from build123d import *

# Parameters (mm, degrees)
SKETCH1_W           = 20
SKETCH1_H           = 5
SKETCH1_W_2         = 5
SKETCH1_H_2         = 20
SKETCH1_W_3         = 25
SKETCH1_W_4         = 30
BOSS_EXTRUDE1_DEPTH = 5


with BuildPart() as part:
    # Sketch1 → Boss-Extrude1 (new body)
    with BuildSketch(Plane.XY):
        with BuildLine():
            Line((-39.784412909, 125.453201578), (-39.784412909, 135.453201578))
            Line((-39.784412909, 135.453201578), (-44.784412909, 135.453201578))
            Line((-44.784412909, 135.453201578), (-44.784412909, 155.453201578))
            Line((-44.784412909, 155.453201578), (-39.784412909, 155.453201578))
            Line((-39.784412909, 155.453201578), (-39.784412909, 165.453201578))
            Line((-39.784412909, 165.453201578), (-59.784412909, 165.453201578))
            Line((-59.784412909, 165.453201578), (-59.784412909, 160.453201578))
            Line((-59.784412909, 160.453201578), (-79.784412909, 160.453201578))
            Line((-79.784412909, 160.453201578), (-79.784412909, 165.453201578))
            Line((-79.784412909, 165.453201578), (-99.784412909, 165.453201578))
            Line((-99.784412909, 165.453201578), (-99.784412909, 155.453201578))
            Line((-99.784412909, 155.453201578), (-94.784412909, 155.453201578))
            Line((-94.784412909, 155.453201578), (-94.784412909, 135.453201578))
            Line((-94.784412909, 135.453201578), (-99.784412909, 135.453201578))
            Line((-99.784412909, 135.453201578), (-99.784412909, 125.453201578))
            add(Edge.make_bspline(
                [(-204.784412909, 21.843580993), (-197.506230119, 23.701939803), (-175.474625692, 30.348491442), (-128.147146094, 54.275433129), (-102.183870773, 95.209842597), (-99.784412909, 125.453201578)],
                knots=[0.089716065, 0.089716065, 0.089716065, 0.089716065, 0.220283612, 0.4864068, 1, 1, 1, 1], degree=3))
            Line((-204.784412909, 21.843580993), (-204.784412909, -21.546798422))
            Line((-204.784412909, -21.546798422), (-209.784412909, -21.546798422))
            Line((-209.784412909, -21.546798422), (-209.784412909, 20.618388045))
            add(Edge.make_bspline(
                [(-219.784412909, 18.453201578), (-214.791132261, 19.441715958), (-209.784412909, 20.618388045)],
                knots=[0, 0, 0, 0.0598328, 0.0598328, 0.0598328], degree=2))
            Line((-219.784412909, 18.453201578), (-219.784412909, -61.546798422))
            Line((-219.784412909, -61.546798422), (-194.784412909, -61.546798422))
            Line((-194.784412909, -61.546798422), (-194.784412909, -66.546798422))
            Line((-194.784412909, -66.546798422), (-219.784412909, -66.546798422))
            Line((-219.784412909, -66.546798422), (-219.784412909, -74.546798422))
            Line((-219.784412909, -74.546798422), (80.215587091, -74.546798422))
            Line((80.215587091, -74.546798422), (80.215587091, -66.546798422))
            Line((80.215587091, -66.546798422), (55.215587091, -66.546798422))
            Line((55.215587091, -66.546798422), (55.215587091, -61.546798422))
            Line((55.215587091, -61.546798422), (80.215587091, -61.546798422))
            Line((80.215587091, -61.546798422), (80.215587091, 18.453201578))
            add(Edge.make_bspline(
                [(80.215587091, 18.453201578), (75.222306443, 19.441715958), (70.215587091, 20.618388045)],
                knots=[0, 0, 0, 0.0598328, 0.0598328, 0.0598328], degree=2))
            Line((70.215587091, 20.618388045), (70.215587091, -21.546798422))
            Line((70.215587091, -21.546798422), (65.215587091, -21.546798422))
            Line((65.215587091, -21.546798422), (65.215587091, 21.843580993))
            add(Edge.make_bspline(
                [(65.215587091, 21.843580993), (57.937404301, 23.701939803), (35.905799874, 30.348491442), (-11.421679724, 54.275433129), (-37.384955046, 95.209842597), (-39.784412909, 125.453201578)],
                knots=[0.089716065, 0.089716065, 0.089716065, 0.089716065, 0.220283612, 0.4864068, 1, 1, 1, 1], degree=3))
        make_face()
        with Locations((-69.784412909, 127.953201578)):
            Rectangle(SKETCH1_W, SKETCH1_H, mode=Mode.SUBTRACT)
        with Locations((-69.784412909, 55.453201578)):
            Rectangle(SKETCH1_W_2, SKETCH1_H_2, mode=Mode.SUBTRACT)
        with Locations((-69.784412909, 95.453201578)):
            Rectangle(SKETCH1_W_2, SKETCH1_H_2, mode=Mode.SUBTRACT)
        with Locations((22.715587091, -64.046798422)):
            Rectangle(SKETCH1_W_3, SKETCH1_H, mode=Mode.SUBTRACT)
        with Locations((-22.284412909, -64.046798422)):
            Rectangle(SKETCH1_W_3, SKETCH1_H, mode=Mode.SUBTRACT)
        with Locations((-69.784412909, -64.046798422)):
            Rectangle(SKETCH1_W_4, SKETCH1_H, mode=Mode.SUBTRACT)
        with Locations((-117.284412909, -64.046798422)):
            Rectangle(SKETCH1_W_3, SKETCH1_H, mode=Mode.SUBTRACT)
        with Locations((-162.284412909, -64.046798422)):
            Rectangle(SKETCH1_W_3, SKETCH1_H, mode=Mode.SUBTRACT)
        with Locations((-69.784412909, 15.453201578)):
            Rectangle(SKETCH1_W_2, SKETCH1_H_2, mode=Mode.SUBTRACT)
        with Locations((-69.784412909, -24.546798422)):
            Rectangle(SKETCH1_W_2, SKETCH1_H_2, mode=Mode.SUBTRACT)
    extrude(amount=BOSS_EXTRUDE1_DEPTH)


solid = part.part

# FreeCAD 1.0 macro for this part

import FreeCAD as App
import Part
import Sketcher
from FreeCAD import Vector

doc = App.newDocument("Part")
body = doc.addObject("PartDesign::Body", "Body")

# Sketch on XY plane
sketch1 = body.newObject("Sketcher::SketchObject", "Sketch")
sketch1.AttachmentSupport = (doc.getObject("XY_Plane"), [""])
sketch1.MapMode = "FlatFace"
sketch1.addGeometry([
    Part.LineSegment(Vector(-39.784413, 125.453202, 0), Vector(-39.784413, 135.453202, 0)),  # 0
    Part.LineSegment(Vector(-39.784413, 135.453202, 0), Vector(-44.784413, 135.453202, 0)),  # 1
    Part.LineSegment(Vector(-44.784413, 135.453202, 0), Vector(-44.784413, 155.453202, 0)),  # 2
    Part.LineSegment(Vector(-44.784413, 155.453202, 0), Vector(-39.784413, 155.453202, 0)),  # 3
    Part.LineSegment(Vector(-39.784413, 155.453202, 0), Vector(-39.784413, 165.453202, 0)),  # 4
    Part.LineSegment(Vector(-39.784413, 165.453202, 0), Vector(-59.784413, 165.453202, 0)),  # 5
    Part.LineSegment(Vector(-59.784413, 165.453202, 0), Vector(-59.784413, 160.453202, 0)),  # 6
    Part.LineSegment(Vector(-59.784413, 160.453202, 0), Vector(-79.784413, 160.453202, 0)),  # 7
    Part.LineSegment(Vector(-79.784413, 160.453202, 0), Vector(-79.784413, 165.453202, 0)),  # 8
    Part.LineSegment(Vector(-79.784413, 165.453202, 0), Vector(-99.784413, 165.453202, 0)),  # 9
    Part.LineSegment(Vector(-99.784413, 165.453202, 0), Vector(-99.784413, 155.453202, 0)),  # 10
    Part.LineSegment(Vector(-99.784413, 155.453202, 0), Vector(-94.784413, 155.453202, 0)),  # 11
    Part.LineSegment(Vector(-94.784413, 155.453202, 0), Vector(-94.784413, 135.453202, 0)),  # 12
    Part.LineSegment(Vector(-94.784413, 135.453202, 0), Vector(-99.784413, 135.453202, 0)),  # 13
    Part.LineSegment(Vector(-99.784413, 135.453202, 0), Vector(-99.784413, 125.453202, 0)),  # 14
    Part.BSplineCurve([Vector(-204.784413, 21.843581, 0), Vector(-197.50623, 23.70194, 0), Vector(-175.474626, 30.348491, 0), Vector(-128.147146, 54.275433, 0), Vector(-102.183871, 95.209843, 0), Vector(-99.784413, 125.453202, 0)], [4, 1, 1, 4], [0.089716065, 0.220283612, 0.4864068, 1], False, 3, [1, 1, 1, 1, 1, 1], False),  # 15
    Part.LineSegment(Vector(-204.784413, 21.843581, 0), Vector(-204.784413, -21.546798, 0)),  # 16
    Part.LineSegment(Vector(-204.784413, -21.546798, 0), Vector(-209.784413, -21.546798, 0)),  # 17
    Part.LineSegment(Vector(-209.784413, -21.546798, 0), Vector(-209.784413, 20.618388, 0)),  # 18
    Part.BSplineCurve([Vector(-219.784413, 18.453202, 0), Vector(-214.791132, 19.441716, 0), Vector(-209.784413, 20.618388, 0)], [3, 3], [0, 0.0598328], False, 2, [1, 1, 1], False),  # 19
    Part.LineSegment(Vector(-219.784413, 18.453202, 0), Vector(-219.784413, -61.546798, 0)),  # 20
    Part.LineSegment(Vector(-219.784413, -61.546798, 0), Vector(-194.784413, -61.546798, 0)),  # 21
    Part.LineSegment(Vector(-194.784413, -61.546798, 0), Vector(-194.784413, -66.546798, 0)),  # 22
    Part.LineSegment(Vector(-194.784413, -66.546798, 0), Vector(-219.784413, -66.546798, 0)),  # 23
    Part.LineSegment(Vector(-219.784413, -66.546798, 0), Vector(-219.784413, -74.546798, 0)),  # 24
    Part.LineSegment(Vector(-219.784413, -74.546798, 0), Vector(80.215587, -74.546798, 0)),  # 25
    Part.LineSegment(Vector(80.215587, -74.546798, 0), Vector(80.215587, -66.546798, 0)),  # 26
    Part.LineSegment(Vector(80.215587, -66.546798, 0), Vector(55.215587, -66.546798, 0)),  # 27
    Part.LineSegment(Vector(55.215587, -66.546798, 0), Vector(55.215587, -61.546798, 0)),  # 28
    Part.LineSegment(Vector(55.215587, -61.546798, 0), Vector(80.215587, -61.546798, 0)),  # 29
    Part.LineSegment(Vector(80.215587, -61.546798, 0), Vector(80.215587, 18.453202, 0)),  # 30
    Part.BSplineCurve([Vector(80.215587, 18.453202, 0), Vector(75.222306, 19.441716, 0), Vector(70.215587, 20.618388, 0)], [3, 3], [0, 0.0598328], False, 2, [1, 1, 1], False),  # 31
    Part.LineSegment(Vector(70.215587, 20.618388, 0), Vector(70.215587, -21.546798, 0)),  # 32
    Part.LineSegment(Vector(70.215587, -21.546798, 0), Vector(65.215587, -21.546798, 0)),  # 33
    Part.LineSegment(Vector(65.215587, -21.546798, 0), Vector(65.215587, 21.843581, 0)),  # 34
    Part.BSplineCurve([Vector(65.215587, 21.843581, 0), Vector(57.937404, 23.70194, 0), Vector(35.9058, 30.348491, 0), Vector(-11.42168, 54.275433, 0), Vector(-37.384955, 95.209843, 0), Vector(-39.784413, 125.453202, 0)], [4, 1, 1, 4], [0.089716065, 0.220283612, 0.4864068, 1], False, 3, [1, 1, 1, 1, 1, 1], False),  # 35
    Part.LineSegment(Vector(-149.784413, -66.546798, 0), Vector(-174.784413, -66.546798, 0)),  # 36
    Part.LineSegment(Vector(-174.784413, -66.546798, 0), Vector(-174.784413, -61.546798, 0)),  # 37
    Part.LineSegment(Vector(-174.784413, -61.546798, 0), Vector(-149.784413, -61.546798, 0)),  # 38
    Part.LineSegment(Vector(-149.784413, -61.546798, 0), Vector(-149.784413, -66.546798, 0)),  # 39
    Part.LineSegment(Vector(-104.784413, -66.546798, 0), Vector(-129.784413, -66.546798, 0)),  # 40
    Part.LineSegment(Vector(-129.784413, -66.546798, 0), Vector(-129.784413, -61.546798, 0)),  # 41
    Part.LineSegment(Vector(-129.784413, -61.546798, 0), Vector(-104.784413, -61.546798, 0)),  # 42
    Part.LineSegment(Vector(-104.784413, -61.546798, 0), Vector(-104.784413, -66.546798, 0)),  # 43
    Part.LineSegment(Vector(-54.784413, -66.546798, 0), Vector(-84.784413, -66.546798, 0)),  # 44
    Part.LineSegment(Vector(-84.784413, -66.546798, 0), Vector(-84.784413, -61.546798, 0)),  # 45
    Part.LineSegment(Vector(-84.784413, -61.546798, 0), Vector(-54.784413, -61.546798, 0)),  # 46
    Part.LineSegment(Vector(-54.784413, -61.546798, 0), Vector(-54.784413, -66.546798, 0)),  # 47
    Part.LineSegment(Vector(-9.784413, -66.546798, 0), Vector(-34.784413, -66.546798, 0)),  # 48
    Part.LineSegment(Vector(-34.784413, -66.546798, 0), Vector(-34.784413, -61.546798, 0)),  # 49
    Part.LineSegment(Vector(-34.784413, -61.546798, 0), Vector(-9.784413, -61.546798, 0)),  # 50
    Part.LineSegment(Vector(-9.784413, -61.546798, 0), Vector(-9.784413, -66.546798, 0)),  # 51
    Part.LineSegment(Vector(-67.284413, -34.546798, 0), Vector(-72.284413, -34.546798, 0)),  # 52
    Part.LineSegment(Vector(-72.284413, -34.546798, 0), Vector(-72.284413, -14.546798, 0)),  # 53
    Part.LineSegment(Vector(-72.284413, -14.546798, 0), Vector(-67.284413, -14.546798, 0)),  # 54
    Part.LineSegment(Vector(-67.284413, -14.546798, 0), Vector(-67.284413, -34.546798, 0)),  # 55
    Part.LineSegment(Vector(35.215587, -66.546798, 0), Vector(10.215587, -66.546798, 0)),  # 56
    Part.LineSegment(Vector(10.215587, -66.546798, 0), Vector(10.215587, -61.546798, 0)),  # 57
    Part.LineSegment(Vector(10.215587, -61.546798, 0), Vector(35.215587, -61.546798, 0)),  # 58
    Part.LineSegment(Vector(35.215587, -61.546798, 0), Vector(35.215587, -66.546798, 0)),  # 59
    Part.LineSegment(Vector(-67.284413, 5.453202, 0), Vector(-72.284413, 5.453202, 0)),  # 60
    Part.LineSegment(Vector(-72.284413, 5.453202, 0), Vector(-72.284413, 25.453202, 0)),  # 61
    Part.LineSegment(Vector(-72.284413, 25.453202, 0), Vector(-67.284413, 25.453202, 0)),  # 62
    Part.LineSegment(Vector(-67.284413, 25.453202, 0), Vector(-67.284413, 5.453202, 0)),  # 63
    Part.LineSegment(Vector(-67.284413, 45.453202, 0), Vector(-72.284413, 45.453202, 0)),  # 64
    Part.LineSegment(Vector(-72.284413, 45.453202, 0), Vector(-72.284413, 65.453202, 0)),  # 65
    Part.LineSegment(Vector(-72.284413, 65.453202, 0), Vector(-67.284413, 65.453202, 0)),  # 66
    Part.LineSegment(Vector(-67.284413, 65.453202, 0), Vector(-67.284413, 45.453202, 0)),  # 67
    Part.LineSegment(Vector(-67.284413, 85.453202, 0), Vector(-72.284413, 85.453202, 0)),  # 68
    Part.LineSegment(Vector(-72.284413, 85.453202, 0), Vector(-72.284413, 105.453202, 0)),  # 69
    Part.LineSegment(Vector(-72.284413, 105.453202, 0), Vector(-67.284413, 105.453202, 0)),  # 70
    Part.LineSegment(Vector(-67.284413, 105.453202, 0), Vector(-67.284413, 85.453202, 0)),  # 71
    Part.LineSegment(Vector(-59.784413, 125.453202, 0), Vector(-79.784413, 125.453202, 0)),  # 72
    Part.LineSegment(Vector(-79.784413, 125.453202, 0), Vector(-79.784413, 130.453202, 0)),  # 73
    Part.LineSegment(Vector(-79.784413, 130.453202, 0), Vector(-59.784413, 130.453202, 0)),  # 74
    Part.LineSegment(Vector(-59.784413, 130.453202, 0), Vector(-59.784413, 125.453202, 0)),  # 75
], False)
sketch1.addConstraint([
    Sketcher.Constraint("Block", 15),
    Sketcher.Constraint("Block", 19),
    Sketcher.Constraint("Block", 31),
    Sketcher.Constraint("Block", 35),
    Sketcher.Constraint("Coincident", 0, 2, 1, 1),
    Sketcher.Constraint("Coincident", 1, 2, 2, 1),
    Sketcher.Constraint("Coincident", 2, 2, 3, 1),
    Sketcher.Constraint("Coincident", 3, 2, 4, 1),
    Sketcher.Constraint("Coincident", 4, 2, 5, 1),
    Sketcher.Constraint("Coincident", 5, 2, 6, 1),
    Sketcher.Constraint("Coincident", 6, 2, 7, 1),
    Sketcher.Constraint("Coincident", 7, 2, 8, 1),
    Sketcher.Constraint("Coincident", 8, 2, 9, 1),
    Sketcher.Constraint("Coincident", 9, 2, 10, 1),
    Sketcher.Constraint("Coincident", 10, 2, 11, 1),
    Sketcher.Constraint("Coincident", 11, 2, 12, 1),
    Sketcher.Constraint("Coincident", 12, 2, 13, 1),
    Sketcher.Constraint("Coincident", 13, 2, 14, 1),
    Sketcher.Constraint("Coincident", 14, 2, 15, 2),
    Sketcher.Constraint("Coincident", 15, 1, 16, 1),
    Sketcher.Constraint("Coincident", 16, 2, 17, 1),
    Sketcher.Constraint("Coincident", 17, 2, 18, 1),
    Sketcher.Constraint("Coincident", 18, 2, 19, 2),
    Sketcher.Constraint("Coincident", 19, 1, 20, 1),
    Sketcher.Constraint("Coincident", 20, 2, 21, 1),
    Sketcher.Constraint("Coincident", 21, 2, 22, 1),
    Sketcher.Constraint("Coincident", 22, 2, 23, 1),
    Sketcher.Constraint("Coincident", 23, 2, 24, 1),
    Sketcher.Constraint("Coincident", 24, 2, 25, 1),
    Sketcher.Constraint("Coincident", 25, 2, 26, 1),
    Sketcher.Constraint("Coincident", 26, 2, 27, 1),
    Sketcher.Constraint("Coincident", 27, 2, 28, 1),
    Sketcher.Constraint("Coincident", 28, 2, 29, 1),
    Sketcher.Constraint("Coincident", 29, 2, 30, 1),
    Sketcher.Constraint("Coincident", 30, 2, 31, 1),
    Sketcher.Constraint("Coincident", 31, 2, 32, 1),
    Sketcher.Constraint("Coincident", 32, 2, 33, 1),
    Sketcher.Constraint("Coincident", 33, 2, 34, 1),
    Sketcher.Constraint("Coincident", 34, 2, 35, 1),
    Sketcher.Constraint("Coincident", 35, 2, 0, 1),
    Sketcher.Constraint("Coincident", 36, 2, 37, 1),
    Sketcher.Constraint("Coincident", 37, 2, 38, 1),
    Sketcher.Constraint("Coincident", 38, 2, 39, 1),
    Sketcher.Constraint("Coincident", 39, 2, 36, 1),
    Sketcher.Constraint("Coincident", 40, 2, 41, 1),
    Sketcher.Constraint("Coincident", 41, 2, 42, 1),
    Sketcher.Constraint("Coincident", 42, 2, 43, 1),
    Sketcher.Constraint("Coincident", 43, 2, 40, 1),
    Sketcher.Constraint("Coincident", 44, 2, 45, 1),
    Sketcher.Constraint("Coincident", 45, 2, 46, 1),
    Sketcher.Constraint("Coincident", 46, 2, 47, 1),
    Sketcher.Constraint("Coincident", 47, 2, 44, 1),
    Sketcher.Constraint("Coincident", 48, 2, 49, 1),
    Sketcher.Constraint("Coincident", 49, 2, 50, 1),
    Sketcher.Constraint("Coincident", 50, 2, 51, 1),
    Sketcher.Constraint("Coincident", 51, 2, 48, 1),
    Sketcher.Constraint("Coincident", 52, 2, 53, 1),
    Sketcher.Constraint("Coincident", 53, 2, 54, 1),
    Sketcher.Constraint("Coincident", 54, 2, 55, 1),
    Sketcher.Constraint("Coincident", 55, 2, 52, 1),
    Sketcher.Constraint("Coincident", 56, 2, 57, 1),
    Sketcher.Constraint("Coincident", 57, 2, 58, 1),
    Sketcher.Constraint("Coincident", 58, 2, 59, 1),
    Sketcher.Constraint("Coincident", 59, 2, 56, 1),
    Sketcher.Constraint("Coincident", 60, 2, 61, 1),
    Sketcher.Constraint("Coincident", 61, 2, 62, 1),
    Sketcher.Constraint("Coincident", 62, 2, 63, 1),
    Sketcher.Constraint("Coincident", 63, 2, 60, 1),
    Sketcher.Constraint("Coincident", 64, 2, 65, 1),
    Sketcher.Constraint("Coincident", 65, 2, 66, 1),
    Sketcher.Constraint("Coincident", 66, 2, 67, 1),
    Sketcher.Constraint("Coincident", 67, 2, 64, 1),
    Sketcher.Constraint("Coincident", 68, 2, 69, 1),
    Sketcher.Constraint("Coincident", 69, 2, 70, 1),
    Sketcher.Constraint("Coincident", 70, 2, 71, 1),
    Sketcher.Constraint("Coincident", 71, 2, 68, 1),
    Sketcher.Constraint("Coincident", 72, 2, 73, 1),
    Sketcher.Constraint("Coincident", 73, 2, 74, 1),
    Sketcher.Constraint("Coincident", 74, 2, 75, 1),
    Sketcher.Constraint("Coincident", 75, 2, 72, 1),
    Sketcher.Constraint("Vertical", 0),
    Sketcher.Constraint("Horizontal", 1),
    Sketcher.Constraint("Vertical", 2),
    Sketcher.Constraint("Horizontal", 3),
    Sketcher.Constraint("Vertical", 4),
    Sketcher.Constraint("Horizontal", 5),
    Sketcher.Constraint("Vertical", 6),
    Sketcher.Constraint("Horizontal", 7),
    Sketcher.Constraint("Vertical", 8),
    Sketcher.Constraint("Horizontal", 9),
    Sketcher.Constraint("Vertical", 10),
    Sketcher.Constraint("Horizontal", 11),
    Sketcher.Constraint("Vertical", 12),
    Sketcher.Constraint("Horizontal", 13),
    Sketcher.Constraint("Vertical", 14),
    Sketcher.Constraint("Vertical", 16),
    Sketcher.Constraint("Horizontal", 17),
    Sketcher.Constraint("Vertical", 18),
    Sketcher.Constraint("Vertical", 20),
    Sketcher.Constraint("Horizontal", 21),
    Sketcher.Constraint("Vertical", 22),
    Sketcher.Constraint("Horizontal", 23),
    Sketcher.Constraint("Vertical", 24),
    Sketcher.Constraint("Horizontal", 25),
    Sketcher.Constraint("Vertical", 26),
    Sketcher.Constraint("Horizontal", 27),
    Sketcher.Constraint("Vertical", 28),
    Sketcher.Constraint("Horizontal", 29),
    Sketcher.Constraint("Vertical", 30),
    Sketcher.Constraint("Vertical", 32),
    Sketcher.Constraint("Horizontal", 33),
    Sketcher.Constraint("Vertical", 34),
    Sketcher.Constraint("Horizontal", 36),
    Sketcher.Constraint("Vertical", 37),
    Sketcher.Constraint("Horizontal", 38),
    Sketcher.Constraint("Vertical", 39),
    Sketcher.Constraint("Horizontal", 40),
    Sketcher.Constraint("Vertical", 41),
    Sketcher.Constraint("Horizontal", 42),
    Sketcher.Constraint("Vertical", 43),
    Sketcher.Constraint("Horizontal", 44),
    Sketcher.Constraint("Vertical", 45),
    Sketcher.Constraint("Horizontal", 46),
    Sketcher.Constraint("Vertical", 47),
    Sketcher.Constraint("Horizontal", 48),
    Sketcher.Constraint("Vertical", 49),
    Sketcher.Constraint("Horizontal", 50),
    Sketcher.Constraint("Vertical", 51),
    Sketcher.Constraint("Horizontal", 52),
    Sketcher.Constraint("Vertical", 53),
    Sketcher.Constraint("Horizontal", 54),
    Sketcher.Constraint("Vertical", 55),
    Sketcher.Constraint("Horizontal", 56),
    Sketcher.Constraint("Vertical", 57),
    Sketcher.Constraint("Horizontal", 58),
    Sketcher.Constraint("Vertical", 59),
    Sketcher.Constraint("Horizontal", 60),
    Sketcher.Constraint("Vertical", 61),
    Sketcher.Constraint("Horizontal", 62),
    Sketcher.Constraint("Vertical", 63),
    Sketcher.Constraint("Horizontal", 64),
    Sketcher.Constraint("Vertical", 65),
    Sketcher.Constraint("Horizontal", 66),
    Sketcher.Constraint("Vertical", 67),
    Sketcher.Constraint("Horizontal", 68),
    Sketcher.Constraint("Vertical", 69),
    Sketcher.Constraint("Horizontal", 70),
    Sketcher.Constraint("Vertical", 71),
    Sketcher.Constraint("Horizontal", 72),
    Sketcher.Constraint("Vertical", 73),
    Sketcher.Constraint("Horizontal", 74),
    Sketcher.Constraint("Vertical", 75),
    Sketcher.Constraint("DistanceX", 1, 2, 1, 1, 5.0),
    Sketcher.Constraint("DistanceX", 3, 1, 3, 2, 5.0),
    Sketcher.Constraint("DistanceX", 5, 2, 5, 1, 20.0),
    Sketcher.Constraint("DistanceX", 7, 2, 7, 1, 20.0),
    Sketcher.Constraint("DistanceX", 9, 2, 9, 1, 20.0),
    Sketcher.Constraint("DistanceX", 11, 1, 11, 2, 5.0),
    Sketcher.Constraint("DistanceX", 21, 1, 21, 2, 25.0),
    Sketcher.Constraint("DistanceX", 23, 2, 23, 1, 25.0),
    Sketcher.Constraint("DistanceX", 25, 1, 25, 2, 300.0),
    Sketcher.Constraint("DistanceX", 27, 2, 27, 1, 25.0),
    Sketcher.Constraint("DistanceX", 36, 2, 36, 1, 25.0),
    Sketcher.Constraint("DistanceX", 40, 2, 40, 1, 25.0),
    Sketcher.Constraint("DistanceX", 44, 2, 44, 1, 30.0),
    Sketcher.Constraint("DistanceX", 48, 2, 48, 1, 25.0),
    Sketcher.Constraint("DistanceX", 52, 2, 52, 1, 5.0),
    Sketcher.Constraint("DistanceX", 56, 2, 56, 1, 25.0),
    Sketcher.Constraint("DistanceX", 60, 2, 60, 1, 5.0),
    Sketcher.Constraint("DistanceX", 64, 2, 64, 1, 5.0),
    Sketcher.Constraint("DistanceX", 68, 2, 68, 1, 5.0),
    Sketcher.Constraint("DistanceX", 72, 2, 72, 1, 20.0),
    Sketcher.Constraint("DistanceY", 0, 1, 0, 2, 10.0),
    Sketcher.Constraint("DistanceY", 2, 1, 2, 2, 20.0),
    Sketcher.Constraint("DistanceY", 4, 1, 4, 2, 10.0),
    Sketcher.Constraint("DistanceY", 6, 2, 6, 1, 5.0),
    Sketcher.Constraint("DistanceY", 8, 1, 8, 2, 5.0),
    Sketcher.Constraint("DistanceY", 10, 2, 10, 1, 10.0),
    Sketcher.Constraint("DistanceY", 12, 2, 12, 1, 20.0),
    Sketcher.Constraint("DistanceY", 20, 2, 20, 1, 80.0),
    Sketcher.Constraint("DistanceY", 22, 2, 22, 1, 5.0),
    Sketcher.Constraint("DistanceY", 24, 2, 24, 1, 8.0),
    Sketcher.Constraint("DistanceY", 26, 1, 26, 2, 8.0),
    Sketcher.Constraint("DistanceY", 28, 1, 28, 2, 5.0),
    Sketcher.Constraint("DistanceY", 37, 1, 37, 2, 5.0),
    Sketcher.Constraint("DistanceY", 41, 1, 41, 2, 5.0),
    Sketcher.Constraint("DistanceY", 45, 1, 45, 2, 5.0),
    Sketcher.Constraint("DistanceY", 49, 1, 49, 2, 5.0),
    Sketcher.Constraint("DistanceY", 53, 1, 53, 2, 20.0),
    Sketcher.Constraint("DistanceY", 57, 1, 57, 2, 5.0),
    Sketcher.Constraint("DistanceY", 61, 1, 61, 2, 20.0),
    Sketcher.Constraint("DistanceY", 65, 1, 65, 2, 20.0),
    Sketcher.Constraint("DistanceY", 69, 1, 69, 2, 20.0),
    Sketcher.Constraint("DistanceY", 73, 1, 73, 2, 5.0),
    Sketcher.Constraint("DistanceY", 16, 2, 16, 1, 43.390379),
    Sketcher.Constraint("DistanceY", 34, 1, 34, 2, 43.390379),
    Sketcher.Constraint("DistanceY", 36, 2, -1, 1, 66.546798),
    Sketcher.Constraint("DistanceY", 40, 2, -1, 1, 66.546798),
    Sketcher.Constraint("DistanceY", 44, 2, -1, 1, 66.546798),
    Sketcher.Constraint("DistanceY", 48, 2, -1, 1, 66.546798),
    Sketcher.Constraint("DistanceY", 52, 2, -1, 1, 34.546798),
    Sketcher.Constraint("DistanceY", 56, 2, -1, 1, 66.546798),
    Sketcher.Constraint("DistanceY", -1, 1, 60, 2, 5.453202),
    Sketcher.Constraint("DistanceY", -1, 1, 64, 2, 45.453202),
    Sketcher.Constraint("DistanceY", -1, 1, 68, 2, 85.453202),
    Sketcher.Constraint("DistanceY", -1, 1, 72, 2, 125.453202),
    Sketcher.Constraint("DistanceX", 36, 2, -1, 1, 174.784413),
    Sketcher.Constraint("DistanceX", 40, 2, -1, 1, 129.784413),
    Sketcher.Constraint("DistanceX", 44, 2, -1, 1, 84.784413),
    Sketcher.Constraint("DistanceX", 48, 2, -1, 1, 34.784413),
    Sketcher.Constraint("DistanceX", 52, 2, -1, 1, 72.284413),
    Sketcher.Constraint("DistanceX", -1, 1, 56, 2, 10.215587),
    Sketcher.Constraint("DistanceX", 60, 2, -1, 1, 72.284413),
    Sketcher.Constraint("DistanceX", 64, 2, -1, 1, 72.284413),
    Sketcher.Constraint("DistanceX", 68, 2, -1, 1, 72.284413),
    Sketcher.Constraint("DistanceX", 72, 2, -1, 1, 79.784413),
])
pad1 = body.newObject("PartDesign::Pad", "Pad")
pad1.Profile = sketch1
pad1.Length = 5

doc.recompute()
